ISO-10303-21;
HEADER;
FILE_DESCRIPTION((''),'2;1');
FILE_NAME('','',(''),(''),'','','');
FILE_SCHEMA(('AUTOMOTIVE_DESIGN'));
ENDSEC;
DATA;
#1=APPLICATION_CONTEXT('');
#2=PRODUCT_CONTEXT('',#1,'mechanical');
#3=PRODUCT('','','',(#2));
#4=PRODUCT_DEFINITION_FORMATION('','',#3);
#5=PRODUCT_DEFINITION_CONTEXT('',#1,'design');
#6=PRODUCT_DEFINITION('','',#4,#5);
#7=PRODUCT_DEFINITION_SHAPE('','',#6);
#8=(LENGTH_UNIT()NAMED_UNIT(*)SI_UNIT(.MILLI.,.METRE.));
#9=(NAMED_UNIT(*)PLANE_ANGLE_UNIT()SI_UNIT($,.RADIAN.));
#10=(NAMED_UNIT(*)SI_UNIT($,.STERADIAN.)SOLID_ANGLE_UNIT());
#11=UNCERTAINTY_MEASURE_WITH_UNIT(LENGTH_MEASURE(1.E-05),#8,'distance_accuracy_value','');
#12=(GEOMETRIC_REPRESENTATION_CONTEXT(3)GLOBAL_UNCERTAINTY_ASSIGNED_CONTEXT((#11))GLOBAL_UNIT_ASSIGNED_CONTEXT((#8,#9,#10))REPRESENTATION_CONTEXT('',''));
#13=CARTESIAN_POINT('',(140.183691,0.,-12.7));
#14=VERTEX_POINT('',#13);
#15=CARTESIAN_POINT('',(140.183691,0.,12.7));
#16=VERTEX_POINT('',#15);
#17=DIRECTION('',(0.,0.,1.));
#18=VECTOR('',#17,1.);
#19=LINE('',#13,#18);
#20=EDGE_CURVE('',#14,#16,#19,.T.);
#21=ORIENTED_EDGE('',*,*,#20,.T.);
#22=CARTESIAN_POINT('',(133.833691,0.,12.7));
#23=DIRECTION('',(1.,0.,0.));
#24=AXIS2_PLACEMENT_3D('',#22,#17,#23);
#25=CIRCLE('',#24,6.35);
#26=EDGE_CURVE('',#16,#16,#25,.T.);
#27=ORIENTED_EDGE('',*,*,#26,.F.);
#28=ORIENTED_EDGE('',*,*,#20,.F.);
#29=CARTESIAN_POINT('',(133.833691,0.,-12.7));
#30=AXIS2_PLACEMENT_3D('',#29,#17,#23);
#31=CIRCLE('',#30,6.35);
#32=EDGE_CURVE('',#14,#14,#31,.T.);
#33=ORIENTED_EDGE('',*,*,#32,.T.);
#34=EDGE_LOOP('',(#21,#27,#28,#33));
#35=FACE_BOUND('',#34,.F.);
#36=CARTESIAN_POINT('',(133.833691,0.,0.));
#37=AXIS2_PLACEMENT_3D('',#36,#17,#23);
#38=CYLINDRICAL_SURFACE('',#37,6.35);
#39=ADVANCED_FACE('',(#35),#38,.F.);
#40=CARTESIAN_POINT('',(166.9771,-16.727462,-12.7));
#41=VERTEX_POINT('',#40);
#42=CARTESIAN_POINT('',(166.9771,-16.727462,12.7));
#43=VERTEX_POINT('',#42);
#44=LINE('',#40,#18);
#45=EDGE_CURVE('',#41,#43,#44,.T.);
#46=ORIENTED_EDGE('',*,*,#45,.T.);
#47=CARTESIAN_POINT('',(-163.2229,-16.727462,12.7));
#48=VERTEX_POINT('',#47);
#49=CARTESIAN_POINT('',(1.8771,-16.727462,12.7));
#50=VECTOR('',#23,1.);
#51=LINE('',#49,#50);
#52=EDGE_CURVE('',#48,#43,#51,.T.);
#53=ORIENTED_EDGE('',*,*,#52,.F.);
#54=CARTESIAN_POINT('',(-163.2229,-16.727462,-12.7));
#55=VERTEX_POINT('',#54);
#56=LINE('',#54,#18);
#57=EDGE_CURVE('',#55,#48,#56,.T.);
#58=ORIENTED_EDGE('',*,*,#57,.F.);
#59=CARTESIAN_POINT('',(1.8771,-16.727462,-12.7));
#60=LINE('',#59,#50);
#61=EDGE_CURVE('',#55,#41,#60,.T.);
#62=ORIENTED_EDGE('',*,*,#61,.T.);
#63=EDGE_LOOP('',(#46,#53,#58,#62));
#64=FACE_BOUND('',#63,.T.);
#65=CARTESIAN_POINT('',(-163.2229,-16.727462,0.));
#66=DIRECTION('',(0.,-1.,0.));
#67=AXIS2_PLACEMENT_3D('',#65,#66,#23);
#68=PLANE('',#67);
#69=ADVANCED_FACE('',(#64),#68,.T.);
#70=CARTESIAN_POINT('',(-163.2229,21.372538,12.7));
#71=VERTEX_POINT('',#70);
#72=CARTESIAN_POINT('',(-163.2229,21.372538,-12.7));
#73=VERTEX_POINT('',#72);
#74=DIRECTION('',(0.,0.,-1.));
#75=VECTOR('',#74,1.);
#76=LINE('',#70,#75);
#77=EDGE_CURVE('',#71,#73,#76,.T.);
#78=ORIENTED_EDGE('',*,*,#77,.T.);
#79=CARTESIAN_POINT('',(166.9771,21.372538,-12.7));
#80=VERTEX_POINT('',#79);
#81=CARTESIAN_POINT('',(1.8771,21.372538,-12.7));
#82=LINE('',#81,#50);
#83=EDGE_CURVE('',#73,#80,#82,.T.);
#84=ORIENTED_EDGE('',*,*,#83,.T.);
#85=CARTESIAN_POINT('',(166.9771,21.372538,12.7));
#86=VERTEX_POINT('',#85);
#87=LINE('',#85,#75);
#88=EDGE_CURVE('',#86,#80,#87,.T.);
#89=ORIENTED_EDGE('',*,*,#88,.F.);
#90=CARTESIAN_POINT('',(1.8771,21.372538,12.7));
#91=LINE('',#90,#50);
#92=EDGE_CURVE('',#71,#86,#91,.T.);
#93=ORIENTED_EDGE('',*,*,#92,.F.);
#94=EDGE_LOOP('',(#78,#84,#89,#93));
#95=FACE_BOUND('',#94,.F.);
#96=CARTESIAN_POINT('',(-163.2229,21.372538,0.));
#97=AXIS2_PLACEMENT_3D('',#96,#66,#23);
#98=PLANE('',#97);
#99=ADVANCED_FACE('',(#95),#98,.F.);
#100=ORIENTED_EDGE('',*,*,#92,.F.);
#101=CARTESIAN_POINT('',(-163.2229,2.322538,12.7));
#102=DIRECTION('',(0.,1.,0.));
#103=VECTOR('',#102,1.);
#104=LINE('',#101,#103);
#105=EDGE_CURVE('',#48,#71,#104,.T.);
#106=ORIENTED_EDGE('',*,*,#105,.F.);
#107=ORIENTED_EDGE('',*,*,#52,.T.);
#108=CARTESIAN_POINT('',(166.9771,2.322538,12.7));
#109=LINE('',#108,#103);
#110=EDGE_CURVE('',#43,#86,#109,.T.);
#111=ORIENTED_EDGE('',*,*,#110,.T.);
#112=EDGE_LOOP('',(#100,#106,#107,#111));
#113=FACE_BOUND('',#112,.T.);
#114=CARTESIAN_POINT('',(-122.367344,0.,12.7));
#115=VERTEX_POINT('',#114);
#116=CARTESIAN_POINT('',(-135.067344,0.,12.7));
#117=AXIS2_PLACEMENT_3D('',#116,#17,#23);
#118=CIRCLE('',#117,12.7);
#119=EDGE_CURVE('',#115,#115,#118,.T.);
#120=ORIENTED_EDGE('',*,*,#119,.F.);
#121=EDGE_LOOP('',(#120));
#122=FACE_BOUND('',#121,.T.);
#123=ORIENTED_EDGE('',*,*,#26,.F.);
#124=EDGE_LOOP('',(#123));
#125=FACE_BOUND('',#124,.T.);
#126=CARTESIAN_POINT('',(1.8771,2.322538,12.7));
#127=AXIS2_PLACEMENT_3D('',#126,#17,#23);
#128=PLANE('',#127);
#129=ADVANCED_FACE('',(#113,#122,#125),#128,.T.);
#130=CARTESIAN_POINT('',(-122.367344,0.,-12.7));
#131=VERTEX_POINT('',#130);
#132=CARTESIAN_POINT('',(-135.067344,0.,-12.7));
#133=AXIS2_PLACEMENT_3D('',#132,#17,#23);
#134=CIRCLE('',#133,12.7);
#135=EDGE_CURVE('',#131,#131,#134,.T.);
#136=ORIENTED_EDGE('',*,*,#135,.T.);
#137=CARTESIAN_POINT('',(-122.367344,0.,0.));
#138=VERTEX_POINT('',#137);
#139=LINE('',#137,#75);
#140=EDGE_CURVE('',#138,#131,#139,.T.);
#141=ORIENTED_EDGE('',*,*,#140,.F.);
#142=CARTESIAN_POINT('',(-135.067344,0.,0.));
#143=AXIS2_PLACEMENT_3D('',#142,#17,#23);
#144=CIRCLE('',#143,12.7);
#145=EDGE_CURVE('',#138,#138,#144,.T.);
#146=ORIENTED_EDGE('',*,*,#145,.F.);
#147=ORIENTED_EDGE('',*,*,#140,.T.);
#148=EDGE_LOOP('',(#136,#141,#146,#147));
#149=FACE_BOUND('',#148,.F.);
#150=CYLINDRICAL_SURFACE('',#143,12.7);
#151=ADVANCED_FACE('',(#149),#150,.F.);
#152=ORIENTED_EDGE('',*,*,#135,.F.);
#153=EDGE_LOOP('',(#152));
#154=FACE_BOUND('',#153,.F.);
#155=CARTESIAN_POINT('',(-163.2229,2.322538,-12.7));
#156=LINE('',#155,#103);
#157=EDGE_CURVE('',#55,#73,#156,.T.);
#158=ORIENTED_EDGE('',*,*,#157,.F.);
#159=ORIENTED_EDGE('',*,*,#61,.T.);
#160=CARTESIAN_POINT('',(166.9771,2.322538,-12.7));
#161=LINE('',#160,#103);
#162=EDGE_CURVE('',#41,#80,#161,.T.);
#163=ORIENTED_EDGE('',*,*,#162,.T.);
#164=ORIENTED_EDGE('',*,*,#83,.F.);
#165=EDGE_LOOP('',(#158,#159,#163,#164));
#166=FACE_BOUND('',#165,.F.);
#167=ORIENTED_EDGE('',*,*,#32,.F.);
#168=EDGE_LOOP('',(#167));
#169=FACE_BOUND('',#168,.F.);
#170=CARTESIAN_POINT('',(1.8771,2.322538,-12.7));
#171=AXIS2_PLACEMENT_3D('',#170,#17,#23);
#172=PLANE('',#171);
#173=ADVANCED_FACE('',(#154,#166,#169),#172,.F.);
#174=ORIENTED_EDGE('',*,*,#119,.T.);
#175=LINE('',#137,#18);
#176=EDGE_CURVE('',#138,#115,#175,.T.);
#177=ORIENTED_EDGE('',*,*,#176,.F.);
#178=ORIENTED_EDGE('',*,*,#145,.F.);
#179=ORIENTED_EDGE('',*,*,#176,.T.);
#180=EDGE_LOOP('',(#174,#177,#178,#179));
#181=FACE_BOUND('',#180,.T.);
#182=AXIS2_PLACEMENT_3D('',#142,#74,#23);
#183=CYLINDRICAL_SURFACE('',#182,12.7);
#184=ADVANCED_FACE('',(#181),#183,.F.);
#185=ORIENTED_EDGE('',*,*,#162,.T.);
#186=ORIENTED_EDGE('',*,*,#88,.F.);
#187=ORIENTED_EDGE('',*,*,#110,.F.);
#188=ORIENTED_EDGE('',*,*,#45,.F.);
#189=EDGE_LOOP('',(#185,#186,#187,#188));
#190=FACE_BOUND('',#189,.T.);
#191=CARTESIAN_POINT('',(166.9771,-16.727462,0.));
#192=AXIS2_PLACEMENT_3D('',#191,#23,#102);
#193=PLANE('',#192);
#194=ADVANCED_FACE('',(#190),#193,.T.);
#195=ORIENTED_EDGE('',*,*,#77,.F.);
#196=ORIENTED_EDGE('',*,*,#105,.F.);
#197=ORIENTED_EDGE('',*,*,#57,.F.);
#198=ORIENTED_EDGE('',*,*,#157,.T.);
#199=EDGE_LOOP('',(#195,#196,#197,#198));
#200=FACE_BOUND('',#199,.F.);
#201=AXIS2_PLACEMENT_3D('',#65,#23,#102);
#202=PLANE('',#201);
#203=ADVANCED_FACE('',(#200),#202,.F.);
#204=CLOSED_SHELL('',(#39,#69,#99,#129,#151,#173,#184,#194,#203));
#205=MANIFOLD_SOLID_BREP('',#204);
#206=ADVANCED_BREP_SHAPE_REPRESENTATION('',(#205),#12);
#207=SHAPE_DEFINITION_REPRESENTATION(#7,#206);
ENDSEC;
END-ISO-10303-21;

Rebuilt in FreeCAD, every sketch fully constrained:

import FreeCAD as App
import Part
import Sketcher
from FreeCAD import Vector
Q = App.Units.Quantity

doc = App.newDocument("Part")
body = doc.addObject("PartDesign::Body", "Body")

# Sketch on XY plane
sketch1 = body.newObject("Sketcher::SketchObject", "Sketch")
sketch1.AttachmentSupport = (doc.getObject("XY_Plane"), [""])
sketch1.MapMode = "FlatFace"
sketch1.addGeometry(Part.LineSegment(Vector(-163.2229, 21.372538, 0), Vector(-163.2229, -16.727462, 0)), False)
sketch1.addGeometry(Part.LineSegment(Vector(-163.2229, -16.727462, 0), Vector(166.9771, -16.727462, 0)), False)
sketch1.addGeometry(Part.LineSegment(Vector(166.9771, -16.727462, 0), Vector(166.9771, 21.372538, 0)), False)
sketch1.addGeometry(Part.LineSegment(Vector(166.9771, 21.372538, 0), Vector(-163.2229, 21.372538, 0)), False)
sketch1.addConstraint(Sketcher.Constraint("Coincident", 0, 2, 1, 1))
sketch1.addConstraint(Sketcher.Constraint("Coincident", 1, 2, 2, 1))
sketch1.addConstraint(Sketcher.Constraint("Coincident", 2, 2, 3, 1))
sketch1.addConstraint(Sketcher.Constraint("Coincident", 3, 2, 0, 1))
sketch1.addConstraint(Sketcher.Constraint("Vertical", 0))
sketch1.addConstraint(Sketcher.Constraint("Horizontal", 1))
sketch1.addConstraint(Sketcher.Constraint("Vertical", 2))
sketch1.addConstraint(Sketcher.Constraint("Horizontal", 3))
sketch1.addConstraint(Sketcher.Constraint("DistanceX", 1, 1, 1, 2, Q("13 in")))
sketch1.addConstraint(Sketcher.Constraint("DistanceY", 0, 2, 0, 1, Q("1.5 in")))
sketch1.addConstraint(Sketcher.Constraint("DistanceX", 0, 2, -1, 1, 163.2229))
sketch1.addConstraint(Sketcher.Constraint("DistanceY", 0, 2, -1, 1, 16.727462))
pad1 = body.newObject("PartDesign::Pad", "Pad")
pad1.Profile = sketch1
pad1.Length = Q("1 in")
pad1.Midplane = True

# Sketch on XY plane
sketch2 = body.newObject("Sketcher::SketchObject", "Sketch001")
sketch2.AttachmentSupport = (doc.getObject("XY_Plane"), [""])
sketch2.MapMode = "FlatFace"
sketch2.addGeometry(Part.Circle(Vector(-135.067344, 0, 0), Vector(0, 0, 1), 12.7), False)
sketch2.addGeometry(Part.Circle(Vector(133.833691, 0, 0), Vector(0, 0, 1), 6.35), False)
sketch2.addConstraint(Sketcher.Constraint("PointOnObject", 0, 3, -1))
sketch2.addConstraint(Sketcher.Constraint("PointOnObject", 1, 3, -1))
sketch2.addConstraint(Sketcher.Constraint("Diameter", 0, Q("1 in")))
sketch2.addConstraint(Sketcher.Constraint("Diameter", 1, Q("0.5 in")))
sketch2.addConstraint(Sketcher.Constraint("DistanceX", -1, 1, 1, 3, 133.833691))
sketch2.addConstraint(Sketcher.Constraint("DistanceX", 0, 3, -1, 1, 135.067344))
pocket1 = body.newObject("PartDesign::Pocket", "Pocket")
pocket1.Profile = sketch2
pocket1.Length = Q("1 in")
pocket1.Midplane = True

doc.recompute()
